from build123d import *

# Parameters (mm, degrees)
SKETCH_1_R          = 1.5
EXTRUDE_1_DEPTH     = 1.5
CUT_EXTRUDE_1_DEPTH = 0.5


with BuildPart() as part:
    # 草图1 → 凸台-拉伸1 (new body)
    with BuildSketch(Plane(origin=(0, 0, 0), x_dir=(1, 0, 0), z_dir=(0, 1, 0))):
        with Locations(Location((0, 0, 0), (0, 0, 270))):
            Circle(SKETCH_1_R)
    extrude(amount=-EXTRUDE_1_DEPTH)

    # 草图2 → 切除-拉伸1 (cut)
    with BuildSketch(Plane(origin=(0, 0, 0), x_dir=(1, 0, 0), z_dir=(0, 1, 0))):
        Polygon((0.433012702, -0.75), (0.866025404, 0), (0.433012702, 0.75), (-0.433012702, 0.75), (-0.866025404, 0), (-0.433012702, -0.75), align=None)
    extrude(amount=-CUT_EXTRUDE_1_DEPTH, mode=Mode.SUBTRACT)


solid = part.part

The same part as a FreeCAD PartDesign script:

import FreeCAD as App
import Part
import Sketcher

V = App.Vector
Q = App.Units.Quantity


def add_polygon(sketch, points):
    """Adds a closed chain of lines whose ends are joined by coincident constraints."""
    first, n = sketch.GeometryCount, len(points)
    for a, b in zip(points, points[1:] + points[:1]):
        sketch.addGeometry(Part.LineSegment(App.Vector(*a, 0), App.Vector(*b, 0)), False)
    for i in range(n):
        sketch.addConstraint(Sketcher.Constraint("Coincident", first + i, 2, first + (i + 1) % n, 1))

doc = App.newDocument("Part")
body = doc.addObject("PartDesign::Body", "Body")

# Sketch on XZ plane
sketch1 = body.newObject("Sketcher::SketchObject", "Sketch")
sketch1.AttachmentSupport = (doc.getObject("XZ_Plane"), [""])
sketch1.MapMode = "FlatFace"
sketch1.addGeometry(Part.Circle(V(0, 0, 0), V(0, 0, 1), 1.5), False)
sketch1.addConstraint([
    Sketcher.Constraint("Coincident", 0, 3, -1, 1),
    Sketcher.Constraint("Diameter", 0, Q("3 mm")),
])
pad1 = body.newObject("PartDesign::Pad", "Pad")
pad1.Profile = sketch1
pad1.Length = 1.5

# Sketch on XZ plane
sketch2 = body.newObject("Sketcher::SketchObject", "Sketch001")
sketch2.AttachmentSupport = (doc.getObject("XZ_Plane"), [""])
sketch2.MapMode = "FlatFace"
add_polygon(sketch2, [(0.433013, 0.75), (0.866025, 0), (0.433013, -0.75), (-0.433013, -0.75), (-0.866025, 0), (-0.433013, 0.75)])  # lines 0-5
sketch2.addConstraint([
    Sketcher.Constraint("Horizontal", 2),
    Sketcher.Constraint("Horizontal", 5),
    Sketcher.Constraint("Symmetric", 0, 2, 3, 2, -1, 1),
    Sketcher.Constraint("Symmetric", 1, 2, 4, 2, -1, 1),
    Sketcher.Constraint("PointOnObject", 0, 2, -1),
    Sketcher.Constraint("Parallel", 0, 3),
    Sketcher.Constraint("Vertical", 2, 2, 4, 2),
    Sketcher.Constraint("Angle", 0, Q("-60 deg")),
    Sketcher.Constraint("DistanceY", 2, 2, 4, 2, Q("1.5 mm")),
    Sketcher.Constraint("DistanceX", 2, 2, 2, 1, Q("0.866025 mm")),
])
pocket1 = body.newObject("PartDesign::Pocket", "Pocket")
pocket1.Profile = sketch2
pocket1.Length = 0.5
pocket1.Reversed = True

doc.recompute()
